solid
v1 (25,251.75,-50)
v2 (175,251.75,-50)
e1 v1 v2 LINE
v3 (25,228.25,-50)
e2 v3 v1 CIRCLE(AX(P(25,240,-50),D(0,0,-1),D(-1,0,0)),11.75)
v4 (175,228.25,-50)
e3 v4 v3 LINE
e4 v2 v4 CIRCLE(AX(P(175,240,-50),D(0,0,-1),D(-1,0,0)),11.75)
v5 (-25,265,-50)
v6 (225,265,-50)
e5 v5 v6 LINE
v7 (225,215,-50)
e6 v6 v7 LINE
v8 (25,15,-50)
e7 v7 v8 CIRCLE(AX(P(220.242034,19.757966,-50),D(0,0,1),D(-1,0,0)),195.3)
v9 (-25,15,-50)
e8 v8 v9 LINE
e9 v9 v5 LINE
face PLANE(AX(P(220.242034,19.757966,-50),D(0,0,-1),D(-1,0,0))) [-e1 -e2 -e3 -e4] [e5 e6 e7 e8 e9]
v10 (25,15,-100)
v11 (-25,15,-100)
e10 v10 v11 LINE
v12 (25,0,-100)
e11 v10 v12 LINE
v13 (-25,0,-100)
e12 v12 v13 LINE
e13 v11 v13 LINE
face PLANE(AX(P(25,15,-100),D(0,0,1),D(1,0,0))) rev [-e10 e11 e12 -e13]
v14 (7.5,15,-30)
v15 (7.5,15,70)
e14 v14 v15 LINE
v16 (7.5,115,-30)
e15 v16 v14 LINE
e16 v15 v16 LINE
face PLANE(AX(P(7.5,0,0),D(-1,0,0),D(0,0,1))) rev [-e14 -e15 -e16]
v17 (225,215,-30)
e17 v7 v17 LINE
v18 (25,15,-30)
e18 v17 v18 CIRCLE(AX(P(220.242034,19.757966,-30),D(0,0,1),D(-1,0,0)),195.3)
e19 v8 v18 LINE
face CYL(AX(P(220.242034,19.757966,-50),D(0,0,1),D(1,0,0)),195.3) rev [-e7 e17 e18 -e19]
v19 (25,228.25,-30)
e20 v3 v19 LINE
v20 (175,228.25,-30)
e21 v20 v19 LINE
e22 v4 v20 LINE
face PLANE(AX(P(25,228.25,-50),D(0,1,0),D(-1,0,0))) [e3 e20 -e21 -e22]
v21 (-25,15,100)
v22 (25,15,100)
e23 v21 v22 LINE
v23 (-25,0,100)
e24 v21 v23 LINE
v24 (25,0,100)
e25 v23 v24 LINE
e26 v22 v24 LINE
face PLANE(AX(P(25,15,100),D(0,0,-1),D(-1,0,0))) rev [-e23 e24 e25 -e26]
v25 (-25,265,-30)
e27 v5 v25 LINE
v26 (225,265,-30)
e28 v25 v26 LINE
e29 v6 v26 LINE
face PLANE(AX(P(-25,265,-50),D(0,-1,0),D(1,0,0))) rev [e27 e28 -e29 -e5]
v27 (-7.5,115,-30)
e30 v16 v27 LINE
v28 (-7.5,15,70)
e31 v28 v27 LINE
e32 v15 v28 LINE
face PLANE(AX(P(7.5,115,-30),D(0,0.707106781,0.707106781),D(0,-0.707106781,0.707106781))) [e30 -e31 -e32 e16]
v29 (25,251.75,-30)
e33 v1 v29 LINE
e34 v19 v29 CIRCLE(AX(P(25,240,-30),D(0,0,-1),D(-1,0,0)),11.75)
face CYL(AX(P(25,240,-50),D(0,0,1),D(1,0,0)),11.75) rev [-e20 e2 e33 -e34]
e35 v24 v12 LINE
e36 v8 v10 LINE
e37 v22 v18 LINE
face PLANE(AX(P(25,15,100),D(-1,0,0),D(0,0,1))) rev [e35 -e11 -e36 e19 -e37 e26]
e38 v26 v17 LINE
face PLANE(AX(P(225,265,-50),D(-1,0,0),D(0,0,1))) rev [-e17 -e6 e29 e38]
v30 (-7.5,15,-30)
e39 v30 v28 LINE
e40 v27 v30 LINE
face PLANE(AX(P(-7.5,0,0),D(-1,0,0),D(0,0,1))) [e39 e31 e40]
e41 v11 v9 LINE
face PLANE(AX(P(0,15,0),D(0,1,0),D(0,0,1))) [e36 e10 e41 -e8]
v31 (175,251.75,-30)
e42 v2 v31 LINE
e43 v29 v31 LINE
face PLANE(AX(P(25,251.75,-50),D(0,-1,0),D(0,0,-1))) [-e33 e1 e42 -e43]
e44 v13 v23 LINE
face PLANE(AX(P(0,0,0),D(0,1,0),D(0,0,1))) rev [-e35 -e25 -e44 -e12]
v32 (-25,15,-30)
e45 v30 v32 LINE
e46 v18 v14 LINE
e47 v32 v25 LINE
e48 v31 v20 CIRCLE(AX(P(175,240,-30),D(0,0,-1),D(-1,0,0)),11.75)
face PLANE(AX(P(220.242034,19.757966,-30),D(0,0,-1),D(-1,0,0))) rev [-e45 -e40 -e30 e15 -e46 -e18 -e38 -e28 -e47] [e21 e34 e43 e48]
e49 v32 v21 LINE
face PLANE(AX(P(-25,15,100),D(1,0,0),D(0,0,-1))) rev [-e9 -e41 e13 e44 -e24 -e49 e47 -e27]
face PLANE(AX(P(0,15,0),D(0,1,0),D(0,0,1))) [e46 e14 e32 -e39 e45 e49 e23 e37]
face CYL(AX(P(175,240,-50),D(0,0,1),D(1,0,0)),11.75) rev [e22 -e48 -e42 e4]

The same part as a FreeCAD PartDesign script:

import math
import FreeCAD as App
import Part
import Sketcher

doc = App.newDocument("Part")
params = doc.addObject("Spreadsheet::Sheet", "Params")
for row, (alias, value) in enumerate([
    ("sketch1_width", "50 mm"),
    ("sketch1_height", "200 mm"),
    ("pad1_length", "15 mm"),
    ("sketch2_radius", "195.3 mm"),
    ("sketch2_width", "250 mm"),
    ("sketch2_width2", "50 mm"),
    ("sketch2_width3", "150 mm"),
    ("sketch2_radius2", "11.75 mm"),
    ("pad2_length", "20 mm"),
    ("sketch3_width", "100 mm"),
    ("pad3_length", "15 mm"),
], start=1):
    params.set(f"A{row}", alias)
    params.set(f"B{row}", "=" + value)
    params.setAlias(f"B{row}", alias)

body = doc.addObject("PartDesign::Body", "Body")

# Sketch on XZ plane
sketch1 = doc.addObject("Sketcher::SketchObject", "Sketch")
body.addObject(sketch1)
sketch1.AttachmentSupport = (doc.XZ_Plane, [""])
sketch1.MapMode = "FlatFace"
sketch1.addGeometry([
    Part.LineSegment(App.Vector(-25, -100, 0), App.Vector(-25, 100, 0)),
    Part.LineSegment(App.Vector(-25, 100, 0), App.Vector(25, 100, 0)),
    Part.LineSegment(App.Vector(25, 100, 0), App.Vector(25, -100, 0)),
    Part.LineSegment(App.Vector(25, -100, 0), App.Vector(-25, -100, 0)),
], False)
sketch1.addConstraint([
    Sketcher.Constraint("Coincident", 0, 2, 1, 1),
    Sketcher.Constraint("Coincident", 1, 2, 2, 1),
    Sketcher.Constraint("Coincident", 2, 2, 3, 1),
    Sketcher.Constraint("Coincident", 3, 2, 0, 1),
    Sketcher.Constraint("Vertical", 0),
    Sketcher.Constraint("Horizontal", 1),
    Sketcher.Constraint("Vertical", 2),
    Sketcher.Constraint("Horizontal", 3),
    Sketcher.Constraint("Symmetric", 0, 2, 2, 2, -1, 1),
    Sketcher.Constraint("DistanceX", 1, 1, 1, 2, 50.0),
    Sketcher.Constraint("DistanceY", 0, 1, 0, 2, 200.0),
])
sketch1.setExpression("Constraints[9]", "Params.sketch1_width")
sketch1.setExpression("Constraints[10]", "Params.sketch1_height")
pad1 = doc.addObject("PartDesign::Pad", "Pad")
body.addObject(pad1)
pad1.Profile = sketch1
pad1.setExpression("Length", "Params.pad1_length")
pad1.Reversed = True

# Sketch on XY plane
sketch2 = doc.addObject("Sketcher::SketchObject", "Sketch001")
body.addObject(sketch2)
sketch2.AttachmentSupport = (doc.XY_Plane, [""])
sketch2.MapMode = "FlatFace"
sketch2.AttachmentOffset = App.Placement(App.Vector(0, 0, -30), App.Rotation())
sketch2.addGeometry([
    Part.LineSegment(App.Vector(-25, 15, 0), App.Vector(-25, 265, 0)),  # 0
    Part.LineSegment(App.Vector(-25, 265, 0), App.Vector(225, 265, 0)),  # 1
    Part.LineSegment(App.Vector(225, 265, 0), App.Vector(225, 215, 0)),  # 2
    Part.ArcOfCircle(Part.Circle(App.Vector(220.242034, 19.757966, 0), App.Vector(0, 0, 1), 195.3), math.radians(88.604002), math.radians(181.395998)),  # 3
    Part.LineSegment(App.Vector(25, 15, 0), App.Vector(-25, 15, 0)),  # 4
    Part.ArcOfCircle(Part.Circle(App.Vector(25, 240, 0), App.Vector(0, 0, 1), 11.75), math.radians(90), math.radians(270)),  # 5
    Part.LineSegment(App.Vector(25, 228.25, 0), App.Vector(175, 228.25, 0)),  # 6
    Part.ArcOfCircle(Part.Circle(App.Vector(175, 240, 0), App.Vector(0, 0, 1), 11.75), math.radians(-90), math.radians(90)),  # 7
    Part.LineSegment(App.Vector(175, 251.75, 0), App.Vector(25, 251.75, 0)),  # 8
], False)
sketch2.addConstraint([
    Sketcher.Constraint("Coincident", 0, 2, 1, 1),
    Sketcher.Constraint("Coincident", 1, 2, 2, 1),
    Sketcher.Constraint("Coincident", 2, 2, 3, 1),
    Sketcher.Constraint("Coincident", 3, 2, 4, 1),
    Sketcher.Constraint("Coincident", 4, 2, 0, 1),
    Sketcher.Constraint("Tangent", 5, 2, 6, 1),
    Sketcher.Constraint("Tangent", 6, 2, 7, 1),
    Sketcher.Constraint("Tangent", 7, 2, 8, 1),
    Sketcher.Constraint("Tangent", 8, 2, 5, 1),
    Sketcher.Constraint("Vertical", 0),
    Sketcher.Constraint("Horizontal", 1),
    Sketcher.Constraint("Vertical", 2),
    Sketcher.Constraint("Horizontal", 4),
    Sketcher.Constraint("Horizontal", 6),
    Sketcher.Constraint("Horizontal", 8),
    Sketcher.Constraint("Vertical", 5, 3, 3, 2),
    Sketcher.Constraint("Equal", 1, 0),
    Sketcher.Constraint("Equal", 4, 2),
    Sketcher.Constraint("Radius", 3, 195.3),
    Sketcher.Constraint("DistanceX", 1, 1, 1, 2, 250.0),
    Sketcher.Constraint("DistanceX", 4, 2, 4, 1, 50.0),
    Sketcher.Constraint("DistanceX", 6, 1, 6, 2, 150.0),
    Sketcher.Constraint("Radius", 5, 11.75),
    Sketcher.Constraint("DistanceX", -1, 1, 5, 3, 25.0),
    Sketcher.Constraint("DistanceY", -1, 1, 5, 3, 240.0),
    Sketcher.Constraint("DistanceY", -1, 1, 0, 2, 265.0),
])
sketch2.setExpression("Constraints[18]", "Params.sketch2_radius")
sketch2.setExpression("Constraints[19]", "Params.sketch2_width")
sketch2.setExpression("Constraints[20]", "Params.sketch2_width2")
sketch2.setExpression("Constraints[21]", "Params.sketch2_width3")
sketch2.setExpression("Constraints[22]", "Params.sketch2_radius2")
pad2 = doc.addObject("PartDesign::Pad", "Pad001")
body.addObject(pad2)
pad2.Profile = sketch2
pad2.setExpression("Length", "Params.pad2_length")
pad2.Reversed = True

# Sketch on YZ plane
sketch3 = doc.addObject("Sketcher::SketchObject", "Sketch002")
body.addObject(sketch3)
sketch3.AttachmentSupport = (doc.YZ_Plane, [""])
sketch3.MapMode = "FlatFace"
sketch3.AttachmentOffset = App.Placement(App.Vector(0, 0, -7.5), App.Rotation())
sketch3.addGeometry([
    Part.LineSegment(App.Vector(15, 70, 0), App.Vector(115, -30, 0)),
    Part.LineSegment(App.Vector(115, -30, 0), App.Vector(15, -30, 0)),
    Part.LineSegment(App.Vector(15, -30, 0), App.Vector(15, 70, 0)),
], False)
sketch3.addConstraint([
    Sketcher.Constraint("Coincident", 0, 2, 1, 1),
    Sketcher.Constraint("Coincident", 1, 2, 2, 1),
    Sketcher.Constraint("Coincident", 2, 2, 0, 1),
    Sketcher.Constraint("Horizontal", 1),
    Sketcher.Constraint("Vertical", 2),
    Sketcher.Constraint("Equal", 1, 2),
    Sketcher.Constraint("DistanceX", 1, 2, 1, 1, 100.0),
    Sketcher.Constraint("DistanceX", -1, 1, 0, 2, 115.0),
    Sketcher.Constraint("DistanceY", 0, 2, -1, 1, 30.0),
])
sketch3.setExpression("Constraints[6]", "Params.sketch3_width")
pad3 = doc.addObject("PartDesign::Pad", "Pad002")
body.addObject(pad3)
pad3.Profile = sketch3
pad3.setExpression("Length", "Params.pad3_length")

doc.recompute()
